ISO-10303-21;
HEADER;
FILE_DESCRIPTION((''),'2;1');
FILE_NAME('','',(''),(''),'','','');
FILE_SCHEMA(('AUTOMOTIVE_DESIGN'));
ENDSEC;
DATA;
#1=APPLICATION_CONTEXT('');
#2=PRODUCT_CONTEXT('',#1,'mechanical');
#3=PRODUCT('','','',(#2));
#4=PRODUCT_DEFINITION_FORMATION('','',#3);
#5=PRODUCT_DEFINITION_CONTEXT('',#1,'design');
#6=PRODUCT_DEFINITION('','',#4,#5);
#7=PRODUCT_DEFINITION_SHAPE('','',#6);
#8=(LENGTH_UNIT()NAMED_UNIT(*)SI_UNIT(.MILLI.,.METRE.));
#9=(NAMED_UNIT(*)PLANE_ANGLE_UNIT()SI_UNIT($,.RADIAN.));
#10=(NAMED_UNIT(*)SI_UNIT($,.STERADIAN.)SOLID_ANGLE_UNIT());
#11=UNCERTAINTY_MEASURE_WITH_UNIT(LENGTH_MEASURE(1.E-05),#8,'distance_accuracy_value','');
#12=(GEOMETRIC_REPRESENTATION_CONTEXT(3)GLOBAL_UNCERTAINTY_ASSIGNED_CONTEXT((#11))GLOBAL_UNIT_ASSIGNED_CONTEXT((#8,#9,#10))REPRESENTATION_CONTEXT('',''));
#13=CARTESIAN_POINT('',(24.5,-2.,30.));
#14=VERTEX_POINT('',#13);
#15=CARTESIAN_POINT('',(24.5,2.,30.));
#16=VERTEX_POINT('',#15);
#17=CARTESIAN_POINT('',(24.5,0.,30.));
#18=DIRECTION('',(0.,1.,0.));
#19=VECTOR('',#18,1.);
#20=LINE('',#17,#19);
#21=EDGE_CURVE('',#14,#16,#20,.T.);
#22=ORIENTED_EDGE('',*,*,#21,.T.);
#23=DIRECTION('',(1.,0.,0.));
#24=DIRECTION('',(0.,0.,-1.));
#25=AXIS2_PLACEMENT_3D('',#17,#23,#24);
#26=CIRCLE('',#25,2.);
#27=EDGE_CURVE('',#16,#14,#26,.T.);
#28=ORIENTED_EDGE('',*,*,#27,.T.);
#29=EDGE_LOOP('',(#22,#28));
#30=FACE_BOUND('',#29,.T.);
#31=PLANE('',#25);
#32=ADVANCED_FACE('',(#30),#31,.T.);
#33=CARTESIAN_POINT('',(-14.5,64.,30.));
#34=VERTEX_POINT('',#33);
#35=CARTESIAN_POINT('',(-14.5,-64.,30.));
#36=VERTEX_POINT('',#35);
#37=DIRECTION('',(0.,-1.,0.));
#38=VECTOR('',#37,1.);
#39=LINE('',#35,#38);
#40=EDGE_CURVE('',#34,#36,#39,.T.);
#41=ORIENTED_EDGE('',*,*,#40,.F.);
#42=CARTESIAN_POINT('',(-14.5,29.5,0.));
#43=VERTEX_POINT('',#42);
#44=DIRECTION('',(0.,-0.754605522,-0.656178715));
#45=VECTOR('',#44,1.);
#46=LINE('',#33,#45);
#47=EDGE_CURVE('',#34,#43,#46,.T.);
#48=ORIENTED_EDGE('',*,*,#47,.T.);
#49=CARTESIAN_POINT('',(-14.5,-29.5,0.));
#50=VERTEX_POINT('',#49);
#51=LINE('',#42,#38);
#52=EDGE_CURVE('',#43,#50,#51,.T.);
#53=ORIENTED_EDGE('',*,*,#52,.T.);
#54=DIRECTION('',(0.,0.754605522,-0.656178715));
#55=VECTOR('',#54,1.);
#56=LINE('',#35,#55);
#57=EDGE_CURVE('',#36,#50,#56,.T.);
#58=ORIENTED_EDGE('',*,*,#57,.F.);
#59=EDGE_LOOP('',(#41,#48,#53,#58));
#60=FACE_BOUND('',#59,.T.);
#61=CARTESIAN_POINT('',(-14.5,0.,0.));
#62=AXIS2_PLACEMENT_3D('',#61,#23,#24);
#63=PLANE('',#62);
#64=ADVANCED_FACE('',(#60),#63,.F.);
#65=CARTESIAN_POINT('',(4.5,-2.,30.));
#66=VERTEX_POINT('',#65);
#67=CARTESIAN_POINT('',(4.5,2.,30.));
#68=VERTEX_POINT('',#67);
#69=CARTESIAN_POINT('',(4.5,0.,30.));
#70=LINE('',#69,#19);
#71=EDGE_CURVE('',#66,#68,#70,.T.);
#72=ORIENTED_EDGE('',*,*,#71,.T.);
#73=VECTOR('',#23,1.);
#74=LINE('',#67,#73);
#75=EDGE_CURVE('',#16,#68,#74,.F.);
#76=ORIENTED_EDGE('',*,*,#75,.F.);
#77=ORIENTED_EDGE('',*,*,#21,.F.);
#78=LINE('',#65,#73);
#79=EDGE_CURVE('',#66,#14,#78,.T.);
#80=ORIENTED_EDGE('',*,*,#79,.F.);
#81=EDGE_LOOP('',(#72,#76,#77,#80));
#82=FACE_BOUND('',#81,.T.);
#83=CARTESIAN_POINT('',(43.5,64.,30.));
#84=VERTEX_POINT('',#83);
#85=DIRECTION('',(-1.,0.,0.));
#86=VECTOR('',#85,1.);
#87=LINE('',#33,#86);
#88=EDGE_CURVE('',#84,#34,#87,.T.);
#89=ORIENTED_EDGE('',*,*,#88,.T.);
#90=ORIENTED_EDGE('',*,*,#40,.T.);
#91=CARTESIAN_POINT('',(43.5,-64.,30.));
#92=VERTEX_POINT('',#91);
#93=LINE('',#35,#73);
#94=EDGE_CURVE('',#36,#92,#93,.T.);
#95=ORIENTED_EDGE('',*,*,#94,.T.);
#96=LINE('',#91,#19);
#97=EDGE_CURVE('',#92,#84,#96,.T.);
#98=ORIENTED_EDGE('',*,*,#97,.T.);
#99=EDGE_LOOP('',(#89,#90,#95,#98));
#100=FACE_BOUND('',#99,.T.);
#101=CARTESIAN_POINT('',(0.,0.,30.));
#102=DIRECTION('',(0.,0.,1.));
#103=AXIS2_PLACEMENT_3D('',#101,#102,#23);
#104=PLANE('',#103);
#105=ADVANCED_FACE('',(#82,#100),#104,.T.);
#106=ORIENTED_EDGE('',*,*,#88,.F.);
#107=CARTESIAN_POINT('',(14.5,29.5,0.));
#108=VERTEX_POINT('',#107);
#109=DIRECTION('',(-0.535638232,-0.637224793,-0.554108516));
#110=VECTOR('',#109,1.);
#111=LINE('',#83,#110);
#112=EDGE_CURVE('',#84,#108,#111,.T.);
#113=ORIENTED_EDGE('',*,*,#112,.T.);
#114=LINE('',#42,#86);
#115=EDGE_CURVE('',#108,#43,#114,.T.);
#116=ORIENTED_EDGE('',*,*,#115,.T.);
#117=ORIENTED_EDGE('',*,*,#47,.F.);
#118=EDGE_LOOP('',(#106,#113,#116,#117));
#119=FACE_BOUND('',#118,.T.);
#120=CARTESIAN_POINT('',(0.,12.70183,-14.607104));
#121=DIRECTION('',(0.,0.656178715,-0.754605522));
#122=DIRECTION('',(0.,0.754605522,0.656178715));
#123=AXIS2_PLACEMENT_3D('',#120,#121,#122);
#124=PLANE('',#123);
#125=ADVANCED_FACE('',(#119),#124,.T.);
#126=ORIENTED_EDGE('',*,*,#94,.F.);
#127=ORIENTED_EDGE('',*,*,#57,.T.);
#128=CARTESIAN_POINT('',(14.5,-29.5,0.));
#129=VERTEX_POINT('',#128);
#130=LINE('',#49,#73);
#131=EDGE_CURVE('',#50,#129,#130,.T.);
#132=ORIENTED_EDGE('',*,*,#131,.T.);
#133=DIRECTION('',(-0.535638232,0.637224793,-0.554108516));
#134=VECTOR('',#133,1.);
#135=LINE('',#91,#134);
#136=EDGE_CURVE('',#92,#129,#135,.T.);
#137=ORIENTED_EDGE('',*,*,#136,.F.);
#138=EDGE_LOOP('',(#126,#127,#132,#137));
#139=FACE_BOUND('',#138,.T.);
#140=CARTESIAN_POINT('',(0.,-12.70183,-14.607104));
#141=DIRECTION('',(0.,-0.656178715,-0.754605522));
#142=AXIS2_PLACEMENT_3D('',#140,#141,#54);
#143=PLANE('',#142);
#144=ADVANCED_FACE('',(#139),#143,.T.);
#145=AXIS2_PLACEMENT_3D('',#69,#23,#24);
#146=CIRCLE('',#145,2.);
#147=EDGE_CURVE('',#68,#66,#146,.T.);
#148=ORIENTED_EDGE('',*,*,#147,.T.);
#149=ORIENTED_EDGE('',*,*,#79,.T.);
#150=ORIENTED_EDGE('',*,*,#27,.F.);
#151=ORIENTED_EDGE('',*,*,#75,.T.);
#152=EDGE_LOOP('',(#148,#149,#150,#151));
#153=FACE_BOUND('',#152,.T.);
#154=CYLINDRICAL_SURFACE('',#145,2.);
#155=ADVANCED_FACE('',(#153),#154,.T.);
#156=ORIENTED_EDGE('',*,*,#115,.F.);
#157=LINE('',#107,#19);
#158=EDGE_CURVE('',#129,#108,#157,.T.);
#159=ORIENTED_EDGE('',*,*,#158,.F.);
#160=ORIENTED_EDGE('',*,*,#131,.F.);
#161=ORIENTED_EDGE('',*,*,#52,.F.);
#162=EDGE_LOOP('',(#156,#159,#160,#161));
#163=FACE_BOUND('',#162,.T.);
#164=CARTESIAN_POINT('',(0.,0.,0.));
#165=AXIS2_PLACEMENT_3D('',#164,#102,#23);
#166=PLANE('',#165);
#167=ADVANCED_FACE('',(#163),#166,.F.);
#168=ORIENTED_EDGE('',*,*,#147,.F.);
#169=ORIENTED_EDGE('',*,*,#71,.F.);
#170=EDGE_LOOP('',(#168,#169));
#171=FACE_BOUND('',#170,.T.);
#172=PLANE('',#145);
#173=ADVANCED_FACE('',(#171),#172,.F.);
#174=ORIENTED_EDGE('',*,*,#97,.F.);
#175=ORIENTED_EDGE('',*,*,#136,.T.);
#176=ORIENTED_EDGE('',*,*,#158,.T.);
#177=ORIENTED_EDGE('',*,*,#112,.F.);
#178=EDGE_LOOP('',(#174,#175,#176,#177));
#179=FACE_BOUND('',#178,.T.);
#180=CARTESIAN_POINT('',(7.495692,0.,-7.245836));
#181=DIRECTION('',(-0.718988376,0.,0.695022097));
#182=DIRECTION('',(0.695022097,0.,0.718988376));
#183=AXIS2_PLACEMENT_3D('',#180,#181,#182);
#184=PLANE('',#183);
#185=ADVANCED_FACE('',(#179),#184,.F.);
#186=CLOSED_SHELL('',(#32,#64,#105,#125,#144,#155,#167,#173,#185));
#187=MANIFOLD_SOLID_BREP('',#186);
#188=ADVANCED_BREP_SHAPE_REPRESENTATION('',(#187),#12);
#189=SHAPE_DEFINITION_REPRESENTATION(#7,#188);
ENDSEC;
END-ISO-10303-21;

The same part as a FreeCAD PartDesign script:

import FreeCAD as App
import Part
import Sketcher

V = App.Vector

doc = App.newDocument("Part")
body = doc.addObject("PartDesign::Body", "Body")

sketch1 = body.newObject("Sketcher::SketchObject", "Sketch")
sketch1.AttachmentSupport = (doc.getObject("XY_Plane"), [""])
sketch1.MapMode = "FlatFace"
sketch1.AttachmentOffset = App.Placement(V(0, 0, 30), App.Rotation())
sketch1.addGeometry([
    Part.LineSegment(V(-14.5, 64, 0), V(-14.5, -64, 0)),
    Part.LineSegment(V(-14.5, -64, 0), V(43.5, -64, 0)),
    Part.LineSegment(V(43.5, -64, 0), V(43.5, 64, 0)),
    Part.LineSegment(V(43.5, 64, 0), V(-14.5, 64, 0)),
], False)
sketch1.addConstraint([
    Sketcher.Constraint("Coincident", 0, 2, 1, 1),
    Sketcher.Constraint("Coincident", 1, 2, 2, 1),
    Sketcher.Constraint("Coincident", 2, 2, 3, 1),
    Sketcher.Constraint("Coincident", 3, 2, 0, 1),
    Sketcher.Constraint("Vertical", 0),
    Sketcher.Constraint("Horizontal", 1),
    Sketcher.Constraint("Vertical", 2),
    Sketcher.Constraint("Horizontal", 3),
    Sketcher.Constraint("DistanceX", 1, 1, 1, 2, 58.0),
    Sketcher.Constraint("DistanceY", 0, 2, 0, 1, 128.0),
    Sketcher.Constraint("DistanceY", 0, 2, -1, 1, 64.0),
    Sketcher.Constraint("DistanceX", 0, 2, -1, 1, 14.5),
])

sketch2 = body.newObject("Sketcher::SketchObject", "Sketch001")
sketch2.AttachmentSupport = (doc.getObject("XY_Plane"), [""])
sketch2.MapMode = "FlatFace"
sketch2.addGeometry([
    Part.LineSegment(V(14.5, 29.5, 0), V(-14.5, 29.5, 0)),
    Part.LineSegment(V(-14.5, 29.5, 0), V(-14.5, -29.5, 0)),
    Part.LineSegment(V(-14.5, -29.5, 0), V(14.5, -29.5, 0)),
    Part.LineSegment(V(14.5, -29.5, 0), V(14.5, 29.5, 0)),
], False)
sketch2.addConstraint([
    Sketcher.Constraint("Coincident", 0, 2, 1, 1),
    Sketcher.Constraint("Coincident", 1, 2, 2, 1),
    Sketcher.Constraint("Coincident", 2, 2, 3, 1),
    Sketcher.Constraint("Coincident", 3, 2, 0, 1),
    Sketcher.Constraint("Horizontal", 0),
    Sketcher.Constraint("Vertical", 1),
    Sketcher.Constraint("Horizontal", 2),
    Sketcher.Constraint("Vertical", 3),
    Sketcher.Constraint("Symmetric", 0, 2, 2, 2, -1, 1),
    Sketcher.Constraint("DistanceX", 0, 2, 0, 1, 29.0),
    Sketcher.Constraint("DistanceY", 1, 2, 1, 1, 59.0),
])

additiveloft = body.newObject("PartDesign::AdditiveLoft", "AdditiveLoft")
additiveloft.Profile = sketch1
additiveloft.Sections = [sketch2]

sketch3 = body.newObject("Sketcher::SketchObject", "Sketch002")
sketch3.AttachmentSupport = (doc.getObject("YZ_Plane"), [""])
sketch3.MapMode = "FlatFace"
sketch3.AttachmentOffset = App.Placement(V(0, 0, 14.5), App.Rotation())
sketch3.addGeometry(Part.Circle(V(0, 30, 0), V(0, 0, 1), 2), False)
sketch3.addConstraint([
    Sketcher.Constraint("PointOnObject", 0, 3, -2),
    Sketcher.Constraint("Diameter", 0, 4.0),
    Sketcher.Constraint("DistanceY", -1, 1, 0, 3, 30.0),
])
pad1 = body.newObject("PartDesign::Pad", "Pad")
pad1.Profile = sketch3
pad1.Type = "TwoLengths"
pad1.Length = 10
pad1.Length2 = 10

doc.recompute()
